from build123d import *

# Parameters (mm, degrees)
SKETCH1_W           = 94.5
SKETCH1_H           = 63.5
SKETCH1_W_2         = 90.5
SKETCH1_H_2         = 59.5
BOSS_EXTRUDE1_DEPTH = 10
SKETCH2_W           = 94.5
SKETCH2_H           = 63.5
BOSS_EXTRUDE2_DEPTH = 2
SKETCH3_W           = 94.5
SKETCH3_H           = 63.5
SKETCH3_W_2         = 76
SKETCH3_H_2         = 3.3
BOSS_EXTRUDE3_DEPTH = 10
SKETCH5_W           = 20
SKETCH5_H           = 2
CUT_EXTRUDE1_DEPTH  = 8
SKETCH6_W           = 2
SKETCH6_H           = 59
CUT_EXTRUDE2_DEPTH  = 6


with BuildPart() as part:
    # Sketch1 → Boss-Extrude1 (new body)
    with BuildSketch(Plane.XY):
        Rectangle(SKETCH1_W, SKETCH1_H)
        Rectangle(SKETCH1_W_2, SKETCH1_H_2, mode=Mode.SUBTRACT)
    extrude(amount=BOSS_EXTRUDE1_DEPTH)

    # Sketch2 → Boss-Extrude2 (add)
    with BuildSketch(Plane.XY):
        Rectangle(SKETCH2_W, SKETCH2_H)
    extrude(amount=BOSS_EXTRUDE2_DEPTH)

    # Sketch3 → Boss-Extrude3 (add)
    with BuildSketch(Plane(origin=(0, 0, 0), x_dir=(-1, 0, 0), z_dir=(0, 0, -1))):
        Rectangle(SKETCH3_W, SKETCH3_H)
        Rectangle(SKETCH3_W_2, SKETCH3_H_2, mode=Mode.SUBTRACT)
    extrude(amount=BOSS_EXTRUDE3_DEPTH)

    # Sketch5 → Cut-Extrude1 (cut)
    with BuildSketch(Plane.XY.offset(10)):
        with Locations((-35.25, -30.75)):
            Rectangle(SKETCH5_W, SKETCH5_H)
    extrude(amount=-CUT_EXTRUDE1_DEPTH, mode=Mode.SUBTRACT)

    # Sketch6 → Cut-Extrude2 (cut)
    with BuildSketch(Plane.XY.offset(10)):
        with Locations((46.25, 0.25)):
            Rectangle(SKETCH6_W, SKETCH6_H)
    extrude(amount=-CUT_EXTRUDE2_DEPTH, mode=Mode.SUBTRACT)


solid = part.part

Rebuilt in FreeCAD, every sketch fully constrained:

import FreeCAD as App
import Part
import Sketcher
from FreeCAD import Vector
Q = App.Units.Quantity

doc = App.newDocument("Part")
params = doc.addObject("Spreadsheet::Sheet", "Params")
for row, (alias, value) in enumerate([
    ("sketch1_width", "94.5 mm"),
    ("sketch1_width2", "90.5 mm"),
    ("sketch1_height", "63.5 mm"),
    ("sketch1_height2", "59.5 mm"),
    ("pad1_length", "10 mm"),
    ("sketch2_width", "94.5 mm"),
    ("sketch2_height", "63.5 mm"),
    ("pad2_length", "2 mm"),
    ("sketch3_width", "76 mm"),
    ("sketch3_width2", "94.5 mm"),
    ("sketch3_height", "63.5 mm"),
    ("sketch3_height2", "3.3 mm"),
    ("pad3_length", "10 mm"),
    ("sketch4_width", "20 mm"),
    ("sketch4_height", "2 mm"),
    ("pocket1_length", "8 mm"),
    ("sketch5_width", "2 mm"),
    ("sketch5_height", "59 mm"),
    ("pocket2_length", "6 mm"),
], start=1):
    params.set(f"A{row}", alias)
    params.set(f"B{row}", "=" + value)
    params.setAlias(f"B{row}", alias)

body = doc.addObject("PartDesign::Body", "Body")

# Sketch on XY plane
sketch1 = body.newObject("Sketcher::SketchObject", "Sketch")
sketch1.AttachmentSupport = (doc.getObject("XY_Plane"), [""])
sketch1.MapMode = "FlatFace"
sketch1.addGeometry([
    Part.LineSegment(Vector(-47, 32, 0), Vector(-47, -32, 0)),  # 0
    Part.LineSegment(Vector(-47, -32, 0), Vector(47, -32, 0)),  # 1
    Part.LineSegment(Vector(47, -32, 0), Vector(47, 32, 0)),  # 2
    Part.LineSegment(Vector(47, 32, 0), Vector(-47, 32, 0)),  # 3
    Part.LineSegment(Vector(45, -30, 0), Vector(-45, -30, 0)),  # 4
    Part.LineSegment(Vector(-45, -30, 0), Vector(-45, 30, 0)),  # 5
    Part.LineSegment(Vector(-45, 30, 0), Vector(45, 30, 0)),  # 6
    Part.LineSegment(Vector(45, 30, 0), Vector(45, -30, 0)),  # 7
], False)
sketch1.addConstraint([
    Sketcher.Constraint("Coincident", 0, 2, 1, 1),
    Sketcher.Constraint("Coincident", 1, 2, 2, 1),
    Sketcher.Constraint("Coincident", 2, 2, 3, 1),
    Sketcher.Constraint("Coincident", 3, 2, 0, 1),
    Sketcher.Constraint("Coincident", 4, 2, 5, 1),
    Sketcher.Constraint("Coincident", 5, 2, 6, 1),
    Sketcher.Constraint("Coincident", 6, 2, 7, 1),
    Sketcher.Constraint("Coincident", 7, 2, 4, 1),
    Sketcher.Constraint("Vertical", 0),
    Sketcher.Constraint("Horizontal", 1),
    Sketcher.Constraint("Vertical", 2),
    Sketcher.Constraint("Horizontal", 3),
    Sketcher.Constraint("Horizontal", 4),
    Sketcher.Constraint("Vertical", 5),
    Sketcher.Constraint("Horizontal", 6),
    Sketcher.Constraint("Vertical", 7),
    Sketcher.Constraint("Symmetric", 0, 2, 2, 2, -1, 1),
    Sketcher.Constraint("Symmetric", 4, 2, 6, 2, -1, 1),
    Sketcher.Constraint("DistanceX", 1, 1, 1, 2, Q("94.5 mm")),
    Sketcher.Constraint("DistanceX", 4, 2, 4, 1, Q("90.5 mm")),
    Sketcher.Constraint("DistanceY", 0, 2, 0, 1, Q("63.5 mm")),
    Sketcher.Constraint("DistanceY", 5, 1, 5, 2, Q("59.5 mm")),
])
sketch1.setExpression("Constraints[18]", "Params.sketch1_width")
sketch1.setExpression("Constraints[19]", "Params.sketch1_width2")
sketch1.setExpression("Constraints[20]", "Params.sketch1_height")
sketch1.setExpression("Constraints[21]", "Params.sketch1_height2")
pad1 = body.newObject("PartDesign::Pad", "Pad")
pad1.Profile = sketch1
pad1.setExpression("Length", "Params.pad1_length")

# Sketch on XY plane
sketch2 = body.newObject("Sketcher::SketchObject", "Sketch001")
sketch2.AttachmentSupport = (doc.getObject("XY_Plane"), [""])
sketch2.MapMode = "FlatFace"
sketch2.addGeometry([
    Part.LineSegment(Vector(-47, 32, 0), Vector(-47, -32, 0)),
    Part.LineSegment(Vector(-47, -32, 0), Vector(47, -32, 0)),
    Part.LineSegment(Vector(47, -32, 0), Vector(47, 32, 0)),
    Part.LineSegment(Vector(47, 32, 0), Vector(-47, 32, 0)),
], False)
sketch2.addConstraint([
    Sketcher.Constraint("Coincident", 0, 2, 1, 1),
    Sketcher.Constraint("Coincident", 1, 2, 2, 1),
    Sketcher.Constraint("Coincident", 2, 2, 3, 1),
    Sketcher.Constraint("Coincident", 3, 2, 0, 1),
    Sketcher.Constraint("Vertical", 0),
    Sketcher.Constraint("Horizontal", 1),
    Sketcher.Constraint("Vertical", 2),
    Sketcher.Constraint("Horizontal", 3),
    Sketcher.Constraint("Symmetric", 0, 2, 2, 2, -1, 1),
    Sketcher.Constraint("DistanceX", 1, 1, 1, 2, Q("94.5 mm")),
    Sketcher.Constraint("DistanceY", 0, 2, 0, 1, Q("63.5 mm")),
])
sketch2.setExpression("Constraints[9]", "Params.sketch2_width")
sketch2.setExpression("Constraints[10]", "Params.sketch2_height")
pad2 = body.newObject("PartDesign::Pad", "Pad001")
pad2.Profile = sketch2
pad2.setExpression("Length", "Params.pad2_length")

# Sketch on XY plane
sketch3 = body.newObject("Sketcher::SketchObject", "Sketch002")
sketch3.AttachmentSupport = (doc.getObject("XY_Plane"), [""])
sketch3.MapMode = "FlatFace"
sketch3.addGeometry([
    Part.LineSegment(Vector(47.2, 31.8, 0), Vector(47.2, -31.8, 0)),  # 0
    Part.LineSegment(Vector(47.2, -31.8, 0), Vector(-47.2, -31.8, 0)),  # 1
    Part.LineSegment(Vector(-47.2, -31.8, 0), Vector(-47.2, 31.8, 0)),  # 2
    Part.LineSegment(Vector(-47.2, 31.8, 0), Vector(47.2, 31.8, 0)),  # 3
    Part.LineSegment(Vector(-38, -1.6, 0), Vector(38, -1.6, 0)),  # 4
    Part.LineSegment(Vector(38, -1.6, 0), Vector(38, 1.6, 0)),  # 5
    Part.LineSegment(Vector(38, 1.6, 0), Vector(-38, 1.6, 0)),  # 6
    Part.LineSegment(Vector(-38, 1.6, 0), Vector(-38, -1.6, 0)),  # 7
], False)
sketch3.addConstraint([
    Sketcher.Constraint("Coincident", 0, 2, 1, 1),
    Sketcher.Constraint("Coincident", 1, 2, 2, 1),
    Sketcher.Constraint("Coincident", 2, 2, 3, 1),
    Sketcher.Constraint("Coincident", 3, 2, 0, 1),
    Sketcher.Constraint("Coincident", 4, 2, 5, 1),
    Sketcher.Constraint("Coincident", 5, 2, 6, 1),
    Sketcher.Constraint("Coincident", 6, 2, 7, 1),
    Sketcher.Constraint("Coincident", 7, 2, 4, 1),
    Sketcher.Constraint("Vertical", 0),
    Sketcher.Constraint("Horizontal", 1),
    Sketcher.Constraint("Vertical", 2),
    Sketcher.Constraint("Horizontal", 3),
    Sketcher.Constraint("Horizontal", 4),
    Sketcher.Constraint("Vertical", 5),
    Sketcher.Constraint("Horizontal", 6),
    Sketcher.Constraint("Vertical", 7),
    Sketcher.Constraint("Symmetric", 0, 2, 2, 2, -1, 1),
    Sketcher.Constraint("Symmetric", 4, 2, 6, 2, -1, 1),
    Sketcher.Constraint("DistanceX", 4, 1, 4, 2, Q("76 mm")),
    Sketcher.Constraint("DistanceX", 1, 2, 1, 1, Q("94.5 mm")),
    Sketcher.Constraint("DistanceY", 0, 2, 0, 1, Q("63.5 mm")),
    Sketcher.Constraint("DistanceY", 5, 1, 5, 2, Q("3.3 mm")),
])
sketch3.setExpression("Constraints[18]", "Params.sketch3_width")
sketch3.setExpression("Constraints[19]", "Params.sketch3_width2")
sketch3.setExpression("Constraints[20]", "Params.sketch3_height")
sketch3.setExpression("Constraints[21]", "Params.sketch3_height2")
pad3 = body.newObject("PartDesign::Pad", "Pad002")
pad3.Profile = sketch3
pad3.setExpression("Length", "Params.pad3_length")
pad3.Reversed = True

# Sketch on XY plane
sketch4 = body.newObject("Sketcher::SketchObject", "Sketch003")
sketch4.AttachmentSupport = (doc.getObject("XY_Plane"), [""])
sketch4.MapMode = "FlatFace"
sketch4.AttachmentOffset = App.Placement(Vector(0, 0, 10), App.Rotation())
sketch4.addGeometry([
    Part.LineSegment(Vector(-45.2, -29.8, 0), Vector(-45.2, -31.8, 0)),
    Part.LineSegment(Vector(-45.2, -31.8, 0), Vector(-25.2, -31.8, 0)),
    Part.LineSegment(Vector(-25.2, -31.8, 0), Vector(-25.2, -29.8, 0)),
    Part.LineSegment(Vector(-25.2, -29.8, 0), Vector(-45.2, -29.8, 0)),
], False)
sketch4.addConstraint([
    Sketcher.Constraint("Coincident", 0, 2, 1, 1),
    Sketcher.Constraint("Coincident", 1, 2, 2, 1),
    Sketcher.Constraint("Coincident", 2, 2, 3, 1),
    Sketcher.Constraint("Coincident", 3, 2, 0, 1),
    Sketcher.Constraint("Vertical", 0),
    Sketcher.Constraint("Horizontal", 1),
    Sketcher.Constraint("Vertical", 2),
    Sketcher.Constraint("Horizontal", 3),
    Sketcher.Constraint("DistanceX", 1, 1, 1, 2, Q("20 mm")),
    Sketcher.Constraint("DistanceY", 0, 2, 0, 1, Q("2 mm")),
    Sketcher.Constraint("DistanceX", 0, 2, -1, 1, Q("45.25 mm")),
    Sketcher.Constraint("DistanceY", 0, 2, -1, 1, Q("31.75 mm")),
])
sketch4.setExpression("Constraints[8]", "Params.sketch4_width")
sketch4.setExpression("Constraints[9]", "Params.sketch4_height")
pocket1 = body.newObject("PartDesign::Pocket", "Pocket")
pocket1.Profile = sketch4
pocket1.setExpression("Length", "Params.pocket1_length")

# Sketch on XY plane
sketch5 = body.newObject("Sketcher::SketchObject", "Sketch004")
sketch5.AttachmentSupport = (doc.getObject("XY_Plane"), [""])
sketch5.MapMode = "FlatFace"
sketch5.AttachmentOffset = App.Placement(Vector(0, 0, 10), App.Rotation())
sketch5.addGeometry([
    Part.LineSegment(Vector(45.2, 29.8, 0), Vector(45.2, -29.2, 0)),
    Part.LineSegment(Vector(45.2, -29.2, 0), Vector(47.2, -29.2, 0)),
    Part.LineSegment(Vector(47.2, -29.2, 0), Vector(47.2, 29.8, 0)),
    Part.LineSegment(Vector(47.2, 29.8, 0), Vector(45.2, 29.8, 0)),
], False)
sketch5.addConstraint([
    Sketcher.Constraint("Coincident", 0, 2, 1, 1),
    Sketcher.Constraint("Coincident", 1, 2, 2, 1),
    Sketcher.Constraint("Coincident", 2, 2, 3, 1),
    Sketcher.Constraint("Coincident", 3, 2, 0, 1),
    Sketcher.Constraint("Vertical", 0),
    Sketcher.Constraint("Horizontal", 1),
    Sketcher.Constraint("Vertical", 2),
    Sketcher.Constraint("Horizontal", 3),
    Sketcher.Constraint("DistanceX", 1, 1, 1, 2, Q("2 mm")),
    Sketcher.Constraint("DistanceY", 0, 2, 0, 1, Q("59 mm")),
    Sketcher.Constraint("DistanceX", -1, 1, 0, 2, Q("45.25 mm")),
    Sketcher.Constraint("DistanceY", 0, 2, -1, 1, Q("29.25 mm")),
])
sketch5.setExpression("Constraints[8]", "Params.sketch5_width")
sketch5.setExpression("Constraints[9]", "Params.sketch5_height")
pocket2 = body.newObject("PartDesign::Pocket", "Pocket001")
pocket2.Profile = sketch5
pocket2.setExpression("Length", "Params.pocket2_length")

doc.recompute()
